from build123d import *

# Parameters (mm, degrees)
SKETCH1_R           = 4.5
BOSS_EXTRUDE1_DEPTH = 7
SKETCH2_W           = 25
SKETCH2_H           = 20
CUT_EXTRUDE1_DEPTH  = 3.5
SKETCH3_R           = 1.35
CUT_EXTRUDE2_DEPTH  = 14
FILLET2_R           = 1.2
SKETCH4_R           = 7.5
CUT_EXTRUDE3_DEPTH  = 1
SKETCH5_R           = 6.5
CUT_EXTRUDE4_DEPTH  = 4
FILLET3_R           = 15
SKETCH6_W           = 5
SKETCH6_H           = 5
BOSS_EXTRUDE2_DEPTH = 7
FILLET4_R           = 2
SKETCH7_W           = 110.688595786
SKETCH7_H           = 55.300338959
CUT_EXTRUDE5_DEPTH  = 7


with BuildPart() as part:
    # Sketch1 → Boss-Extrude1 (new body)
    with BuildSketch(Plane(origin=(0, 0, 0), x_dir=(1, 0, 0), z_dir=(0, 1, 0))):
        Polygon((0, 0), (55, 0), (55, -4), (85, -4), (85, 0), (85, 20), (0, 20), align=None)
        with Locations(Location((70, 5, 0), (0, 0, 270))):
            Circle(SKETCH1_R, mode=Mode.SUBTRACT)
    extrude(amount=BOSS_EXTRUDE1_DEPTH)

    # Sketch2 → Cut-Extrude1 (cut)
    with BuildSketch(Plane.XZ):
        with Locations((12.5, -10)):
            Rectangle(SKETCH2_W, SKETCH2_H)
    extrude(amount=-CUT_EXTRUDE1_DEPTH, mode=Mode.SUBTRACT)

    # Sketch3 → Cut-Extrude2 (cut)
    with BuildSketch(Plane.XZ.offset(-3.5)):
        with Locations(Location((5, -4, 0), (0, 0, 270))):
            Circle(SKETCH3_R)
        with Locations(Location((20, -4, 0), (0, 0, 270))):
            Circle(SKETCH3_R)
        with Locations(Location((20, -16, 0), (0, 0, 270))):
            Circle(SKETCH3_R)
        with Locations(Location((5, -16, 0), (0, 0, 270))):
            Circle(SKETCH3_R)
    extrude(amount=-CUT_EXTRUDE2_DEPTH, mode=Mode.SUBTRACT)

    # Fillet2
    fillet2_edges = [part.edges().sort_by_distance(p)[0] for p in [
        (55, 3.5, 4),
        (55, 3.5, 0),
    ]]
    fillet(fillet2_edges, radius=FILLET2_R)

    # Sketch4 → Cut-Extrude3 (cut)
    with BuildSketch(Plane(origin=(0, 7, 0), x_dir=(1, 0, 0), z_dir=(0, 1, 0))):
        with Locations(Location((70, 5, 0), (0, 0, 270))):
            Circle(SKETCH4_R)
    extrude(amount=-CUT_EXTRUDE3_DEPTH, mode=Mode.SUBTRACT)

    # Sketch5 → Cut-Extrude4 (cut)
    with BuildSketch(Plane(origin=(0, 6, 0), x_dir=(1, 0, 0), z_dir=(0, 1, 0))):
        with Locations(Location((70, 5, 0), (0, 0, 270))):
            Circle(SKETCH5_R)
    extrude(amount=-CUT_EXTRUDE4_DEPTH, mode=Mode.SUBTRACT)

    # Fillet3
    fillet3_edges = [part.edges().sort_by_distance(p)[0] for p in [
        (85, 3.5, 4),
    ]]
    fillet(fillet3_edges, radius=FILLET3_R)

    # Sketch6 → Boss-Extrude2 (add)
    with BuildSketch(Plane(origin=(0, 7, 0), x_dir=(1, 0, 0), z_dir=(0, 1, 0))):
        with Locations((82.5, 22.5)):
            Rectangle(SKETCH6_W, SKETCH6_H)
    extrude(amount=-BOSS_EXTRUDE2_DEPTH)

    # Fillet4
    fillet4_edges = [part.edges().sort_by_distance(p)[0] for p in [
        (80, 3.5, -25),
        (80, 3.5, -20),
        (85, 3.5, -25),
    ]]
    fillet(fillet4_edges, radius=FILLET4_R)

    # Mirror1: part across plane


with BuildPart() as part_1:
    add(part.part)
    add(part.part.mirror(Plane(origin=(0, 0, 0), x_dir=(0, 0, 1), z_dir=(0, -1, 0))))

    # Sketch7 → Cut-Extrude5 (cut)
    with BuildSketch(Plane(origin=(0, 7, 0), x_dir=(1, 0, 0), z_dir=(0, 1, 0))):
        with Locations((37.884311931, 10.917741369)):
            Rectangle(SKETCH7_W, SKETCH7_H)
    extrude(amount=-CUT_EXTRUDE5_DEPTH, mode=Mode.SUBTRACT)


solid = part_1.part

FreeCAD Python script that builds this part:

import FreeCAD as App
import Part
import Sketcher
Q = App.Units.Quantity


def edges_at(feature, points):
    """Names of the edges that pass closest to the given points."""
    edges = feature.Shape.Edges
    near = lambda p: min(range(len(edges)), key=lambda i: edges[i].distToShape(Part.Vertex(*p))[0])
    return sorted({f"Edge{near(p) + 1}" for p in points})

doc = App.newDocument("Part")
body = doc.addObject("PartDesign::Body", "Body")

sketch1 = body.newObject("Sketcher::SketchObject", "Sketch")
sketch1.AttachmentSupport = (doc.getObject("XZ_Plane"), [""])
sketch1.MapMode = "FlatFace"
sketch1.addGeometry([
    Part.LineSegment(App.Vector(0, 0, 0), App.Vector(55, 0, 0)),
    Part.LineSegment(App.Vector(55, 0, 0), App.Vector(55, 4, 0)),
    Part.LineSegment(App.Vector(55, 4, 0), App.Vector(85, 4, 0)),
    Part.LineSegment(App.Vector(85, 4, 0), App.Vector(85, -20, 0)),
    Part.LineSegment(App.Vector(85, -20, 0), App.Vector(0, -20, 0)),
    Part.LineSegment(App.Vector(0, -20, 0), App.Vector(0, 0, 0)),
    Part.Circle(App.Vector(70, -5, 0), App.Vector(0, 0, 1), 4.5),
], False)
sketch1.addConstraint([
    Sketcher.Constraint("Coincident", 0, 2, 1, 1),
    Sketcher.Constraint("Coincident", 1, 2, 2, 1),
    Sketcher.Constraint("Coincident", 2, 2, 3, 1),
    Sketcher.Constraint("Coincident", 3, 2, 4, 1),
    Sketcher.Constraint("Coincident", 4, 2, 5, 1),
    Sketcher.Constraint("Coincident", 5, 2, 0, 1),
    Sketcher.Constraint("Horizontal", 0),
    Sketcher.Constraint("Vertical", 1),
    Sketcher.Constraint("Horizontal", 2),
    Sketcher.Constraint("Vertical", 3),
    Sketcher.Constraint("Horizontal", 4),
    Sketcher.Constraint("Vertical", 5),
    Sketcher.Constraint("Coincident", 5, 2, -1, 1),
    Sketcher.Constraint("Diameter", 6, Q("9 mm")),
    Sketcher.Constraint("DistanceX", 0, 1, 0, 2, Q("55 mm")),
    Sketcher.Constraint("DistanceX", 2, 1, 2, 2, Q("30 mm")),
    Sketcher.Constraint("DistanceY", 1, 1, 1, 2, Q("4 mm")),
    Sketcher.Constraint("DistanceY", 3, 2, 3, 1, Q("24 mm")),
    Sketcher.Constraint("DistanceX", -1, 1, 6, 3, Q("70 mm")),
    Sketcher.Constraint("DistanceY", 6, 3, -1, 1, Q("5 mm")),
])
pad1 = body.newObject("PartDesign::Pad", "Pad")
pad1.Profile = sketch1
pad1.Length = 7
pad1.Reversed = True

sketch2 = body.newObject("Sketcher::SketchObject", "Sketch001")
sketch2.AttachmentSupport = (doc.getObject("XZ_Plane"), [""])
sketch2.MapMode = "FlatFace"
sketch2.addGeometry([
    Part.LineSegment(App.Vector(0, 0, 0), App.Vector(0, -20, 0)),
    Part.LineSegment(App.Vector(0, -20, 0), App.Vector(25, -20, 0)),
    Part.LineSegment(App.Vector(25, -20, 0), App.Vector(25, 0, 0)),
    Part.LineSegment(App.Vector(25, 0, 0), App.Vector(0, 0, 0)),
], False)
sketch2.addConstraint([
    Sketcher.Constraint("Coincident", 0, 2, 1, 1),
    Sketcher.Constraint("Coincident", 1, 2, 2, 1),
    Sketcher.Constraint("Coincident", 2, 2, 3, 1),
    Sketcher.Constraint("Coincident", 3, 2, 0, 1),
    Sketcher.Constraint("Vertical", 0),
    Sketcher.Constraint("Horizontal", 1),
    Sketcher.Constraint("Vertical", 2),
    Sketcher.Constraint("Horizontal", 3),
    Sketcher.Constraint("Coincident", 3, 2, -1, 1),
    Sketcher.Constraint("DistanceX", 1, 1, 1, 2, Q("25 mm")),
    Sketcher.Constraint("DistanceY", 0, 2, 0, 1, Q("20 mm")),
])
pocket1 = body.newObject("PartDesign::Pocket", "Pocket")
pocket1.Profile = sketch2
pocket1.Length = 3.5

sketch3 = body.newObject("Sketcher::SketchObject", "Sketch002")
sketch3.AttachmentSupport = (doc.getObject("XZ_Plane"), [""])
sketch3.MapMode = "FlatFace"
sketch3.AttachmentOffset = App.Placement(App.Vector(0, 0, -3.5), App.Rotation())
sketch3.addGeometry([
    Part.Circle(App.Vector(5, -4, 0), App.Vector(0, 0, 1), 1.4),
    Part.Circle(App.Vector(20, -4, 0), App.Vector(0, 0, 1), 1.4),
    Part.Circle(App.Vector(20, -16, 0), App.Vector(0, 0, 1), 1.4),
    Part.Circle(App.Vector(5, -16, 0), App.Vector(0, 0, 1), 1.4),
], False)
sketch3.addConstraint([
    Sketcher.Constraint("Equal", 0, 1),
    Sketcher.Constraint("Equal", 1, 2),
    Sketcher.Constraint("Equal", 2, 3),
    Sketcher.Constraint("Horizontal", 0, 3, 1, 3),
    Sketcher.Constraint("Horizontal", 2, 3, 3, 3),
    Sketcher.Constraint("Vertical", 1, 3, 2, 3),
    Sketcher.Constraint("Vertical", 0, 3, 3, 3),
    Sketcher.Constraint("Diameter", 0, Q("2.7 mm")),
    Sketcher.Constraint("DistanceX", -1, 1, 0, 3, Q("5 mm")),
    Sketcher.Constraint("DistanceY", 0, 3, -1, 1, Q("4 mm")),
    Sketcher.Constraint("DistanceX", -1, 1, 1, 3, Q("20 mm")),
    Sketcher.Constraint("DistanceY", 2, 3, -1, 1, Q("16 mm")),
])
pocket2 = body.newObject("PartDesign::Pocket", "Pocket001")
pocket2.Profile = sketch3
pocket2.Length = 14
doc.recompute()

fillet = body.newObject("PartDesign::Fillet", "Fillet")
fillet.Base = (pocket2, edges_at(pocket2, [(55, 3.5, 4), (55, 3.5, 0)]))
fillet.Radius = 1.2

sketch4 = body.newObject("Sketcher::SketchObject", "Sketch003")
sketch4.AttachmentSupport = (doc.getObject("XZ_Plane"), [""])
sketch4.MapMode = "FlatFace"
sketch4.AttachmentOffset = App.Placement(App.Vector(0, 0, -7), App.Rotation())
sketch4.addGeometry(Part.Circle(App.Vector(70, -5, 0), App.Vector(0, 0, 1), 8), False)
sketch4.addConstraint([
    Sketcher.Constraint("Diameter", 0, Q("15 mm")),
    Sketcher.Constraint("DistanceX", -1, 1, 0, 3, Q("70 mm")),
    Sketcher.Constraint("DistanceY", 0, 3, -1, 1, Q("5 mm")),
])
pocket3 = body.newObject("PartDesign::Pocket", "Pocket002")
pocket3.Profile = sketch4
pocket3.Length = 1
pocket3.Reversed = True

sketch5 = body.newObject("Sketcher::SketchObject", "Sketch004")
sketch5.AttachmentSupport = (doc.getObject("XZ_Plane"), [""])
sketch5.MapMode = "FlatFace"
sketch5.AttachmentOffset = App.Placement(App.Vector(0, 0, -6), App.Rotation())
sketch5.addGeometry(Part.Circle(App.Vector(70, -5, 0), App.Vector(0, 0, 1), 6), False)
sketch5.addConstraint([
    Sketcher.Constraint("Diameter", 0, Q("13 mm")),
    Sketcher.Constraint("DistanceX", -1, 1, 0, 3, Q("70 mm")),
    Sketcher.Constraint("DistanceY", 0, 3, -1, 1, Q("5 mm")),
])
pocket4 = body.newObject("PartDesign::Pocket", "Pocket003")
pocket4.Profile = sketch5
pocket4.Length = 4
pocket4.Reversed = True
doc.recompute()

fillet2 = body.newObject("PartDesign::Fillet", "Fillet001")
fillet2.Base = (pocket4, edges_at(pocket4, [(85, 3.5, 4)]))
fillet2.Radius = 15

sketch6 = body.newObject("Sketcher::SketchObject", "Sketch005")
sketch6.AttachmentSupport = (doc.getObject("XZ_Plane"), [""])
sketch6.MapMode = "FlatFace"
sketch6.AttachmentOffset = App.Placement(App.Vector(0, 0, -7), App.Rotation())
sketch6.addGeometry([
    Part.LineSegment(App.Vector(80, -25, 0), App.Vector(80, -20, 0)),
    Part.LineSegment(App.Vector(80, -20, 0), App.Vector(85, -20, 0)),
    Part.LineSegment(App.Vector(85, -20, 0), App.Vector(85, -25, 0)),
    Part.LineSegment(App.Vector(85, -25, 0), App.Vector(80, -25, 0)),
], False)
sketch6.addConstraint([
    Sketcher.Constraint("Coincident", 0, 2, 1, 1),
    Sketcher.Constraint("Coincident", 1, 2, 2, 1),
    Sketcher.Constraint("Coincident", 2, 2, 3, 1),
    Sketcher.Constraint("Coincident", 3, 2, 0, 1),
    Sketcher.Constraint("Vertical", 0),
    Sketcher.Constraint("Horizontal", 1),
    Sketcher.Constraint("Vertical", 2),
    Sketcher.Constraint("Horizontal", 3),
    Sketcher.Constraint("Equal", 3, 0),
    Sketcher.Constraint("DistanceX", 1, 1, 1, 2, Q("5 mm")),
    Sketcher.Constraint("DistanceX", -1, 1, 0, 2, Q("80 mm")),
    Sketcher.Constraint("DistanceY", 0, 2, -1, 1, Q("20 mm")),
])
pad2 = body.newObject("PartDesign::Pad", "Pad001")
pad2.Profile = sketch6
pad2.Length = 7
doc.recompute()

fillet3 = body.newObject("PartDesign::Fillet", "Fillet002")
fillet3.Base = (pad2, edges_at(pad2, [(80, 3.5, -25), (80, 3.5, -20), (85, 3.5, -25)]))
fillet3.Radius = 2
body2 = doc.addObject("PartDesign::Body", "Body001")
doc.recompute()

body2.BaseFeature = body
doc.recompute()

mirroring = doc.addObject("Part::Mirroring", "Mirroring")
mirroring.Source = body
mirroring.Base = App.Vector(0, 0, 0)
mirroring.Normal = App.Vector(0, -1, 0)
body3 = doc.addObject("PartDesign::Body", "Body002")
body3.BaseFeature = mirroring
boolean = body2.newObject("PartDesign::Boolean", "Boolean")
boolean.Type = "Fuse"
boolean.addObjects([body3])
doc.recompute()

sketch7 = body2.newObject("Sketcher::SketchObject", "Sketch006")
sketch7.AttachmentSupport = (doc.getObject("XZ_Plane001"), [""])
sketch7.MapMode = "FlatFace"
sketch7.AttachmentOffset = App.Placement(App.Vector(0, 0, -7), App.Rotation())
sketch7.addGeometry([
    Part.LineSegment(App.Vector(-17, -39, 0), App.Vector(-17, 17, 0)),
    Part.LineSegment(App.Vector(-17, 17, 0), App.Vector(93, 17, 0)),
    Part.LineSegment(App.Vector(93, 17, 0), App.Vector(93, -39, 0)),
    Part.LineSegment(App.Vector(93, -39, 0), App.Vector(-17, -39, 0)),
], False)
sketch7.addConstraint([
    Sketcher.Constraint("Coincident", 0, 2, 1, 1),
    Sketcher.Constraint("Coincident", 1, 2, 2, 1),
    Sketcher.Constraint("Coincident", 2, 2, 3, 1),
    Sketcher.Constraint("Coincident", 3, 2, 0, 1),
    Sketcher.Constraint("Vertical", 0),
    Sketcher.Constraint("Horizontal", 1),
    Sketcher.Constraint("Vertical", 2),
    Sketcher.Constraint("Horizontal", 3),
    Sketcher.Constraint("DistanceY", 0, 1, 0, 2, Q("55.300339 mm")),
    Sketcher.Constraint("DistanceX", 1, 1, 1, 2, Q("110.688596 mm")),
    Sketcher.Constraint("DistanceY", -1, 1, 0, 2, Q("16.732428 mm")),
    Sketcher.Constraint("DistanceX", -1, 1, 1, 2, Q("93.22861 mm")),
])
pocket5 = body2.newObject("PartDesign::Pocket", "Pocket004")
pocket5.Profile = sketch7
pocket5.Length = 7
pocket5.Reversed = True
mirroring.Visibility = False

doc.recompute()
